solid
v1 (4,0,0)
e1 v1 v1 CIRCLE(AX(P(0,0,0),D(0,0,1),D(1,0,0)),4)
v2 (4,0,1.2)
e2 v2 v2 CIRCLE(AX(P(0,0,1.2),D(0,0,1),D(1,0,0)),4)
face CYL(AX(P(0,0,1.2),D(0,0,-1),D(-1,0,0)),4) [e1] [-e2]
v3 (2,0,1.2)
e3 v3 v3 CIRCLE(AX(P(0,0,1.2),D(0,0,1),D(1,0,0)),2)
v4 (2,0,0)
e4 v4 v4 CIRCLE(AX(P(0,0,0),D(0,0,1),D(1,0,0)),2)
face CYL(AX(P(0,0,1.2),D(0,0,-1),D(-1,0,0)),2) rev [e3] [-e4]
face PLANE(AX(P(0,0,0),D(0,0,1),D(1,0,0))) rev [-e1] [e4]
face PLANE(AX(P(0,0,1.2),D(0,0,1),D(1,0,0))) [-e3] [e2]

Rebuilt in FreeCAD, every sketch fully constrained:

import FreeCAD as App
import Part
import Sketcher

doc = App.newDocument("Part")
body = doc.addObject("PartDesign::Body", "Body")

# Sketch on XY plane
sketch1 = body.newObject("Sketcher::SketchObject", "Sketch")
sketch1.AttachmentSupport = (doc.getObject("XY_Plane"), [""])
sketch1.MapMode = "FlatFace"
sketch1.addGeometry(Part.Circle(App.Vector(0, 0, 0), App.Vector(0, 0, 1), 4), False)
sketch1.addGeometry(Part.Circle(App.Vector(0, 0, 0), App.Vector(0, 0, 1), 2), False)
sketch1.addConstraint(Sketcher.Constraint("Coincident", 0, 3, -1, 1))
sketch1.addConstraint(Sketcher.Constraint("Coincident", 1, 3, -1, 1))
sketch1.addConstraint(Sketcher.Constraint("Diameter", 0, 8.0))
sketch1.addConstraint(Sketcher.Constraint("Diameter", 1, 4.0))
pad1 = body.newObject("PartDesign::Pad", "Pad")
pad1.Profile = sketch1
pad1.Length = 1.2

doc.recompute()
